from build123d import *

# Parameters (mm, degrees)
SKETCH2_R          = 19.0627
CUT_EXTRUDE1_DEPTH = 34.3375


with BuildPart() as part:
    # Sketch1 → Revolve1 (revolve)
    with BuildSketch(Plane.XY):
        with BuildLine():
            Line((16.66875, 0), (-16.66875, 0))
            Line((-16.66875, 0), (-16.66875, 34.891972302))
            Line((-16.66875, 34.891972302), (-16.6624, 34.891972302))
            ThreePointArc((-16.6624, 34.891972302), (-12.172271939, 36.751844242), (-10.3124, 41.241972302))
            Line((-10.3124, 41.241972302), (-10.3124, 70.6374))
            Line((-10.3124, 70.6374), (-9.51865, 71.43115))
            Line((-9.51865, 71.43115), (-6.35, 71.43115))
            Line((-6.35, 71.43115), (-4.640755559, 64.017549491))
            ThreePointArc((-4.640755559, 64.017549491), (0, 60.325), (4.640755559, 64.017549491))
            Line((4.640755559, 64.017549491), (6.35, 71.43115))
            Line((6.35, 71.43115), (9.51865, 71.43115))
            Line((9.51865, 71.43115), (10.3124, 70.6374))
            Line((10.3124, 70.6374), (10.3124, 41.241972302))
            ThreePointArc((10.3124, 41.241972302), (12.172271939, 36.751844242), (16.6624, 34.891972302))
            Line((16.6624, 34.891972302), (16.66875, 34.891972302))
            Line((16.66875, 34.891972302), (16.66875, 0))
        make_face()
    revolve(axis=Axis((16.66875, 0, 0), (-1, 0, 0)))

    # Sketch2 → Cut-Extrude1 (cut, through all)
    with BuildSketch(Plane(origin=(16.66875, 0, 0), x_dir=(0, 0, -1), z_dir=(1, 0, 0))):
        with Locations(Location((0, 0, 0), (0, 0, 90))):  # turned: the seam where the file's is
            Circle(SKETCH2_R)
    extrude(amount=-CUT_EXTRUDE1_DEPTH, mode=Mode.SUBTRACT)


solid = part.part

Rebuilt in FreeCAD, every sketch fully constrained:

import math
import FreeCAD as App
import Part
import Sketcher

V = App.Vector
Q = App.Units.Quantity

doc = App.newDocument("Part")
body = doc.addObject("PartDesign::Body", "Body")

sketch1 = body.newObject("Sketcher::SketchObject", "Sketch")
sketch1.AttachmentSupport = (doc.getObject("XY_Plane"), [""])
sketch1.MapMode = "FlatFace"
sketch1.addGeometry([
    Part.LineSegment(V(-16.669, 0, 0), V(16.669, 0, 0)),
    Part.LineSegment(V(16.669, 0, 0), V(16.669, 34.892, 0)),
    Part.LineSegment(V(16.669, 34.892, 0), V(16.662, 34.892, 0)),
    Part.ArcOfCircle(Part.Circle(V(16.662, 41.242, 0), V(0, 0, 1), 6.35), math.radians(180), math.radians(270)),
    Part.LineSegment(V(10.312, 41.242, 0), V(10.312, 70.637, 0)),
    Part.LineSegment(V(10.312, 70.637, 0), V(9.519, 71.431, 0)),
    Part.LineSegment(V(9.519, 71.431, 0), V(6.35, 71.431, 0)),
    Part.LineSegment(V(6.35, 71.431, 0), V(4.641, 64.018, 0)),
    Part.ArcOfCircle(Part.Circle(V(0, 65.088, 0), V(0, 0, 1), 4.763), math.radians(-167), math.radians(-13)),
    Part.LineSegment(V(-4.641, 64.018, 0), V(-6.35, 71.431, 0)),
    Part.LineSegment(V(-6.35, 71.431, 0), V(-9.519, 71.431, 0)),
    Part.LineSegment(V(-9.519, 71.431, 0), V(-10.312, 70.637, 0)),
    Part.LineSegment(V(-10.312, 70.637, 0), V(-10.312, 41.242, 0)),
    Part.ArcOfCircle(Part.Circle(V(-16.662, 41.242, 0), V(0, 0, 1), 6.35), math.radians(-90), math.radians(0)),
    Part.LineSegment(V(-16.662, 34.892, 0), V(-16.669, 34.892, 0)),
    Part.LineSegment(V(-16.669, 34.892, 0), V(-16.669, 0, 0)),
], False)
sketch1.addConstraint([
    Sketcher.Constraint("Coincident", 0, 2, 1, 1),
    Sketcher.Constraint("Coincident", 1, 2, 2, 1),
    Sketcher.Constraint("Tangent", 2, 2, 3, 2),
    Sketcher.Constraint("Tangent", 3, 1, 4, 1),
    Sketcher.Constraint("Coincident", 4, 2, 5, 1),
    Sketcher.Constraint("Coincident", 5, 2, 6, 1),
    Sketcher.Constraint("Coincident", 6, 2, 7, 1),
    Sketcher.Constraint("Tangent", 7, 2, 8, 2),
    Sketcher.Constraint("Tangent", 8, 1, 9, 1),
    Sketcher.Constraint("Coincident", 9, 2, 10, 1),
    Sketcher.Constraint("Coincident", 10, 2, 11, 1),
    Sketcher.Constraint("Coincident", 11, 2, 12, 1),
    Sketcher.Constraint("Tangent", 12, 2, 13, 2),
    Sketcher.Constraint("Tangent", 13, 1, 14, 1),
    Sketcher.Constraint("Coincident", 14, 2, 15, 1),
    Sketcher.Constraint("Coincident", 15, 2, 0, 1),
    Sketcher.Constraint("Horizontal", 0),
    Sketcher.Constraint("Vertical", 1),
    Sketcher.Constraint("Vertical", 4),
    Sketcher.Constraint("Horizontal", 6),
    Sketcher.Constraint("Horizontal", 10),
    Sketcher.Constraint("Vertical", 12),
    Sketcher.Constraint("Vertical", 15),
    Sketcher.Constraint("Equal", 3, 13),
    Sketcher.Constraint("Symmetric", 0, 2, 15, 2, -1, 1),
    Sketcher.Constraint("Symmetric", 3, 3, 13, 3, -2),
    Sketcher.Constraint("Symmetric", 7, 2, 8, 1, -2),
    Sketcher.Constraint("Symmetric", 5, 2, 10, 2, -2),
    Sketcher.Constraint("Perpendicular", 5, 11),
    Sketcher.Constraint("Horizontal", 4, 2, 11, 2),
    Sketcher.Constraint("Vertical", 3, 3, 2, 2),
    Sketcher.Constraint("Equal", 2, 14),
    Sketcher.Constraint("Radius", 3, Q("0.25 in")),
    Sketcher.Constraint("Radius", 8, Q("0.1875 in")),
    Sketcher.Constraint("DistanceX", 9, 2, 6, 2, Q("0.5 in")),
    Sketcher.Constraint("DistanceX", 0, 1, 0, 2, Q("1.3125 in")),
    Sketcher.Constraint("DistanceX", -1, 1, 3, 3, Q("0.656 in")),
    Sketcher.Constraint("DistanceY", -1, 1, 8, 3, Q("2.5625 in")),
    Sketcher.Constraint("DistanceY", -1, 1, 4, 2, Q("2.781 in")),
    Sketcher.Constraint("DistanceX", 5, 2, 4, 2, Q("0.03125 in")),
    Sketcher.Constraint("DistanceY", 1, 1, 1, 2, Q("34.891972 mm")),
])
revolution = body.newObject("PartDesign::Revolution", "Revolution")
revolution.Profile = sketch1
revolution.ReferenceAxis = (sketch1, ["H_Axis"])
revolution.Angle = 360

sketch2 = body.newObject("Sketcher::SketchObject", "Sketch001")
sketch2.AttachmentSupport = (doc.getObject("YZ_Plane"), [""])
sketch2.MapMode = "FlatFace"
sketch2.AttachmentOffset = App.Placement(V(0, 0, 0.65625 * 25.4), App.Rotation())
sketch2.addGeometry(Part.Circle(V(0, 0, 0), V(0, 0, 1), 19), False)
sketch2.addConstraint([
    Sketcher.Constraint("Coincident", 0, 3, -1, 1),
    Sketcher.Constraint("Diameter", 0, Q("1.501 in")),
])
pocket1 = body.newObject("PartDesign::Pocket", "Pocket")
pocket1.Profile = sketch2
pocket1.Type = "ThroughAll"

doc.recompute()
